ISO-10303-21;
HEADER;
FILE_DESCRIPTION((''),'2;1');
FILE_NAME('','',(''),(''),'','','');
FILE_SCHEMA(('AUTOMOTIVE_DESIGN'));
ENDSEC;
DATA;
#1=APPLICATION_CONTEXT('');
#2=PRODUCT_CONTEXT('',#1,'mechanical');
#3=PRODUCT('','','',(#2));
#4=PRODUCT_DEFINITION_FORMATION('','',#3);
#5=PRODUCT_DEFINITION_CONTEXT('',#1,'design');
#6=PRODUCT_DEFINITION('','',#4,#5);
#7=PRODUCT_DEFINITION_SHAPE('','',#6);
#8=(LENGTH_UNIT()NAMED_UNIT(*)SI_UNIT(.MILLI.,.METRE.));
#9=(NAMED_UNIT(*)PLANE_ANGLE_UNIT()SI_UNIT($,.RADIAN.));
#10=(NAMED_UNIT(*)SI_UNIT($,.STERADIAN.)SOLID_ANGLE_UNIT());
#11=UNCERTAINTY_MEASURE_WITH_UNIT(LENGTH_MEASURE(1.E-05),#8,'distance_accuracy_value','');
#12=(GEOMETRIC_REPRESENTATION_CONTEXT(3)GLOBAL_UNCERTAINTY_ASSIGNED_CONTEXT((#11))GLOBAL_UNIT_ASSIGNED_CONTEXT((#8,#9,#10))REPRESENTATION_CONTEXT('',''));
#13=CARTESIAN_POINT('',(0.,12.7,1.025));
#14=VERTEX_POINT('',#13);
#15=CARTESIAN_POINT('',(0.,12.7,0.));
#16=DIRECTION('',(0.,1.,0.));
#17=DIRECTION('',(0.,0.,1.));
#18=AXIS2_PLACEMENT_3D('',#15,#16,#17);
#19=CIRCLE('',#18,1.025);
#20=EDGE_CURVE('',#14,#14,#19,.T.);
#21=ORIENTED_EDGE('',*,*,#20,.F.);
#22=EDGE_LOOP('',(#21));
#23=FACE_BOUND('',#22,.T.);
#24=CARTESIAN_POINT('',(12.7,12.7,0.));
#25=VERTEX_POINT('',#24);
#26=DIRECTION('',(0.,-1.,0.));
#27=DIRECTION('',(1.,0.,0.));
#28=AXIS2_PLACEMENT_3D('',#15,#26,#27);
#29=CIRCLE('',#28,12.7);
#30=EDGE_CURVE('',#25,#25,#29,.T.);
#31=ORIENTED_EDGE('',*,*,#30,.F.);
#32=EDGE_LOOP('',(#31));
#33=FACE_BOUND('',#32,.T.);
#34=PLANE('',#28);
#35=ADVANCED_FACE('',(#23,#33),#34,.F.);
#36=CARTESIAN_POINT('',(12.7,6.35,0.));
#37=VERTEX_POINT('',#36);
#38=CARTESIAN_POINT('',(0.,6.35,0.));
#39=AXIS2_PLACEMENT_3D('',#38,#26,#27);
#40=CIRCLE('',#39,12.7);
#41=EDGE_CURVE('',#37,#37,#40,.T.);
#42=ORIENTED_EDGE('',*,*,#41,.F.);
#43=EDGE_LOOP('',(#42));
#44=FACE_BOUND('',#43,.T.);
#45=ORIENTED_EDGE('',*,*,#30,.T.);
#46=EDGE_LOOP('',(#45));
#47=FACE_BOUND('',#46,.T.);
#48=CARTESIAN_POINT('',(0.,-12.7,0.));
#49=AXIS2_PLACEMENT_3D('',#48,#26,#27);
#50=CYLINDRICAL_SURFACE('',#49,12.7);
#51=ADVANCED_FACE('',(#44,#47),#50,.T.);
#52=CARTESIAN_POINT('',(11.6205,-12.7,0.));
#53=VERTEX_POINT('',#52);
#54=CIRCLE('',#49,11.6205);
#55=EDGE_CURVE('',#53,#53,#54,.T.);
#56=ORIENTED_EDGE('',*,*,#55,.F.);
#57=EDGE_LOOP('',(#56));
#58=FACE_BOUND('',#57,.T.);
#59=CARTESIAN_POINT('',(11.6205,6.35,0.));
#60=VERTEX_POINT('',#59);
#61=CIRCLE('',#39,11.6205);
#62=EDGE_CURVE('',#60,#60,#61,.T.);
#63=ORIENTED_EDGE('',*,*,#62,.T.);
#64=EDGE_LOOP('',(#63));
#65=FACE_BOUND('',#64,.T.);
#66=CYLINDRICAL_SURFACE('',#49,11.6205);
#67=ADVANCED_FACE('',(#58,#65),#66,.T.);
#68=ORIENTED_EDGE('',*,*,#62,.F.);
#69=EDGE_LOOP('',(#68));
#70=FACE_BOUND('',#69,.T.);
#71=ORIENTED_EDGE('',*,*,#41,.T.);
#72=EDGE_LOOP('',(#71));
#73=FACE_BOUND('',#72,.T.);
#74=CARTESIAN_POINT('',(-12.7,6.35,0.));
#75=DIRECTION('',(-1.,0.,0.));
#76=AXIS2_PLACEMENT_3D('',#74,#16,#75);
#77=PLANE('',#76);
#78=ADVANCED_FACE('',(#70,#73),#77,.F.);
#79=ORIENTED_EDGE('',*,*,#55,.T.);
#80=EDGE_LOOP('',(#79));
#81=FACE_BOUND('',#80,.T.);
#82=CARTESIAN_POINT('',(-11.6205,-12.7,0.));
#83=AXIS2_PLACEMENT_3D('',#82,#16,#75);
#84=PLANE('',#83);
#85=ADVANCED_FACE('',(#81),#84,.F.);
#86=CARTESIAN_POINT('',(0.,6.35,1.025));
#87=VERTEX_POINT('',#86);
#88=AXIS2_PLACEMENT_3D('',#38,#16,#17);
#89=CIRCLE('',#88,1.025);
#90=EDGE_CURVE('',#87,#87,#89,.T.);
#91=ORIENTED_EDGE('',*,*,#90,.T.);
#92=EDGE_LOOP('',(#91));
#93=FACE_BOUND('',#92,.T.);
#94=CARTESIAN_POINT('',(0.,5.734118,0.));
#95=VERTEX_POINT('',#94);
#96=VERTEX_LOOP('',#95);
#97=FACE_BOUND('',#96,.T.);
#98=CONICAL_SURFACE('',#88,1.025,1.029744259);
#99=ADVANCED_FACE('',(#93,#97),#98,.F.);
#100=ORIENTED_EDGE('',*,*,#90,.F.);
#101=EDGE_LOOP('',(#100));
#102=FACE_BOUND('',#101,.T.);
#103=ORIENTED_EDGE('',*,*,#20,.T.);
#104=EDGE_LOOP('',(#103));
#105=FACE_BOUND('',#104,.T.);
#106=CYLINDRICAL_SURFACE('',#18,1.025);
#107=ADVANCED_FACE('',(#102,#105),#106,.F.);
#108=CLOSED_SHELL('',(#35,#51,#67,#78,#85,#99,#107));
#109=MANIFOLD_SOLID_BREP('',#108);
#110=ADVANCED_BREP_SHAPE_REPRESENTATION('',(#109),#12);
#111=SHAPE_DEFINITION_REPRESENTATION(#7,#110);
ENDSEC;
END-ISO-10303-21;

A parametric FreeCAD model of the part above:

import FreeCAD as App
import Part
import Sketcher

V = App.Vector
Q = App.Units.Quantity


def add_polygon(sketch, points):
    """Adds a closed chain of lines whose ends are joined by coincident constraints."""
    first, n = sketch.GeometryCount, len(points)
    for a, b in zip(points, points[1:] + points[:1]):
        sketch.addGeometry(Part.LineSegment(App.Vector(*a, 0), App.Vector(*b, 0)), False)
    for i in range(n):
        sketch.addConstraint(Sketcher.Constraint("Coincident", first + i, 2, first + (i + 1) % n, 1))

doc = App.newDocument("Part")
params = doc.addObject("Spreadsheet::Sheet", "Params")
for row, (alias, value) in enumerate([
    ("sketch1_height", "1 in"),
    ("sketch1_width", "0.5 in"),
    ("sketch1_height2", "0.25 in"),
    ("revolution_angle", "360 deg"),
    ("hole_diameter", "2.05 mm"),
    ("hole_depth", "0.25 in"),
], start=1):
    params.set(f"A{row}", alias)
    params.set(f"B{row}", "=" + value)
    params.setAlias(f"B{row}", alias)

body = doc.addObject("PartDesign::Body", "Body")

# Sketch on XY plane
sketch1 = doc.addObject("Sketcher::SketchObject", "Sketch")
body.addObject(sketch1)
sketch1.AttachmentSupport = (doc.XY_Plane, [""])
sketch1.MapMode = "FlatFace"
add_polygon(sketch1, [(0, 12.7), (-12.7, 12.7), (-12.7, 6.35), (-11.6205, 6.35), (-11.6205, -12.7), (0, -12.7)])  # lines 0-5
sketch1.addConstraint(Sketcher.Constraint("Horizontal", 0))
sketch1.addConstraint(Sketcher.Constraint("Vertical", 1))
sketch1.addConstraint(Sketcher.Constraint("Horizontal", 2))
sketch1.addConstraint(Sketcher.Constraint("Vertical", 3))
sketch1.addConstraint(Sketcher.Constraint("Horizontal", 4))
sketch1.addConstraint(Sketcher.Constraint("Vertical", 5))
sketch1.addConstraint(Sketcher.Constraint("Symmetric", 4, 2, 5, 2, -1, 1))
sketch1.addConstraint(Sketcher.Constraint("DistanceY", 5, 1, 5, 2, Q("1 in")))
sketch1.addConstraint(Sketcher.Constraint("DistanceX", 0, 2, 0, 1, Q("0.5 in")))
sketch1.addConstraint(Sketcher.Constraint("DistanceY", 1, 2, 1, 1, Q("0.25 in")))
sketch1.addConstraint(Sketcher.Constraint("DistanceX", 2, 1, 2, 2, Q("0.0425 in")))
sketch1.setExpression("Constraints[13]", "Params.sketch1_height")
sketch1.setExpression("Constraints[14]", "Params.sketch1_width")
sketch1.setExpression("Constraints[15]", "Params.sketch1_height2")
revolution = doc.addObject("PartDesign::Revolution", "Revolution")
body.addObject(revolution)
revolution.Profile = sketch1
revolution.ReferenceAxis = (sketch1, ["V_Axis"])
revolution.setExpression("Angle", "Params.revolution_angle")

# Sketch on XZ plane
sketch2 = doc.addObject("Sketcher::SketchObject", "Sketch001")
body.addObject(sketch2)
sketch2.AttachmentSupport = (doc.XZ_Plane, [""])
sketch2.MapMode = "FlatFace"
sketch2.AttachmentOffset = App.Placement(V(0, 0, -0.5 * 25.4), App.Rotation())
sketch2.addGeometry(Part.Circle(V(0, 0, 0), V(0, 0, 1), 1.025), False)
sketch2.addConstraint(Sketcher.Constraint("Coincident", 0, 3, -1, 1))
sketch2.addConstraint(Sketcher.Constraint("Diameter", 0, 2.05))
doc.recompute()
hole = doc.addObject("PartDesign::Hole", "Hole")
body.addObject(hole)
hole.Profile = sketch2
hole.ThreadType = "None"
hole.setExpression("Diameter", "Params.hole_diameter")
hole.DepthType = "Dimension"
hole.setExpression("Depth", "Params.hole_depth")
hole.DrillPoint = "Angled"
hole.DrillPointAngle = 118
hole.Reversed = True

doc.recompute()
